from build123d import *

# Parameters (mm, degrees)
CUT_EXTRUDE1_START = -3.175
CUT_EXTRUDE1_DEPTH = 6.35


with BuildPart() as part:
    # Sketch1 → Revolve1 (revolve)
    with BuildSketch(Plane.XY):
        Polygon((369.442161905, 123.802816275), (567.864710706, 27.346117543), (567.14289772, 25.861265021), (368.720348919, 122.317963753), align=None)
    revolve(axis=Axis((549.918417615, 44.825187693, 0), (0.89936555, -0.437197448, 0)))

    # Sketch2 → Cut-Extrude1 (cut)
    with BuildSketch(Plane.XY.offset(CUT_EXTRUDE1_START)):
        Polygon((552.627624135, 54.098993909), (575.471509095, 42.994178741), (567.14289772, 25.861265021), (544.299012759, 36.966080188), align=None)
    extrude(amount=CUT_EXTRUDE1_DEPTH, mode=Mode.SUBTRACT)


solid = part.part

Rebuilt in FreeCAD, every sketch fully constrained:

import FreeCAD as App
import Part
import Sketcher
Q = App.Units.Quantity


def add_polygon(sketch, points):
    """Adds a closed chain of lines whose ends are joined by coincident constraints."""
    first, n = sketch.GeometryCount, len(points)
    for a, b in zip(points, points[1:] + points[:1]):
        sketch.addGeometry(Part.LineSegment(App.Vector(*a, 0), App.Vector(*b, 0)), False)
    for i in range(n):
        sketch.addConstraint(Sketcher.Constraint("Coincident", first + i, 2, first + (i + 1) % n, 1))

doc = App.newDocument("Part")
body = doc.addObject("PartDesign::Body", "Body")

sketch1 = body.newObject("Sketcher::SketchObject", "Sketch")
sketch1.AttachmentSupport = (doc.getObject("XY_Plane"), [""])
sketch1.MapMode = "FlatFace"
add_polygon(sketch1, [(567.9, 27.3), (369.4, 123.8), (368.7, 122.3), (567.1, 25.9)])
sketch1.addGeometry(Part.LineSegment(App.Vector(372.9, 130.9, 0), App.Vector(571.3, 34.4, 0)), True)
sketch1.addConstraint([
    Sketcher.Constraint("Perpendicular", 0, 1),
    Sketcher.Constraint("Perpendicular", 1, 2),
    Sketcher.Constraint("Perpendicular", 2, 3),
    Sketcher.Constraint("Perpendicular", 3, 4),
    Sketcher.Constraint("Equal", 2, 4),
    Sketcher.Constraint("Distance", 1, Q("0.065 in")),
    Sketcher.Constraint("DistanceY", 2, 2, 1, 2, Q("96.456699 mm")),
    Sketcher.Constraint("DistanceX", -1, 1, 0, 2, Q("369.442162 mm")),
    Sketcher.Constraint("DistanceX", -1, 1, 3, 2, Q("567.864711 mm")),
    Sketcher.Constraint("DistanceY", -1, 1, 4, 1, Q("130.884421 mm")),
    Sketcher.Constraint("DistanceX", 0, 2, 4, 2, Q("201.865042 mm")),
    Sketcher.Constraint("DistanceY", 4, 2, 1, 2, Q("87.890242 mm")),
])
revolution = body.newObject("PartDesign::Revolution", "Revolution")
revolution.Profile = sketch1
revolution.ReferenceAxis = (sketch1, ["Axis0"])
revolution.Angle = 360

sketch2 = body.newObject("Sketcher::SketchObject", "Sketch001")
sketch2.AttachmentSupport = (doc.getObject("XY_Plane"), [""])
sketch2.MapMode = "FlatFace"
sketch2.AttachmentOffset = App.Placement(App.Vector(0, 0, -0.125 * 25.4), App.Rotation())
add_polygon(sketch2, [(575, 43), (553, 54), (544, 37), (567, 26)])
sketch2.addConstraint([
    Sketcher.Constraint("Perpendicular", 0, 1),
    Sketcher.Constraint("Perpendicular", 1, 2),
    Sketcher.Constraint("Perpendicular", 2, 3),
    Sketcher.Constraint("Distance", 0, Q("1 in")),
    Sketcher.Constraint("Distance", 1, Q("0.75 in")),
    Sketcher.Constraint("DistanceY", 1, 2, 3, 2, Q("6.028099 mm")),
    Sketcher.Constraint("DistanceY", -1, 1, 1, 2, Q("36.96608 mm")),
    Sketcher.Constraint("DistanceX", -1, 1, 3, 2, Q("575.471509 mm")),
])
pocket1 = body.newObject("PartDesign::Pocket", "Pocket")
pocket1.Profile = sketch2
pocket1.Length = Q("0.25 in")
pocket1.Reversed = True

doc.recompute()
